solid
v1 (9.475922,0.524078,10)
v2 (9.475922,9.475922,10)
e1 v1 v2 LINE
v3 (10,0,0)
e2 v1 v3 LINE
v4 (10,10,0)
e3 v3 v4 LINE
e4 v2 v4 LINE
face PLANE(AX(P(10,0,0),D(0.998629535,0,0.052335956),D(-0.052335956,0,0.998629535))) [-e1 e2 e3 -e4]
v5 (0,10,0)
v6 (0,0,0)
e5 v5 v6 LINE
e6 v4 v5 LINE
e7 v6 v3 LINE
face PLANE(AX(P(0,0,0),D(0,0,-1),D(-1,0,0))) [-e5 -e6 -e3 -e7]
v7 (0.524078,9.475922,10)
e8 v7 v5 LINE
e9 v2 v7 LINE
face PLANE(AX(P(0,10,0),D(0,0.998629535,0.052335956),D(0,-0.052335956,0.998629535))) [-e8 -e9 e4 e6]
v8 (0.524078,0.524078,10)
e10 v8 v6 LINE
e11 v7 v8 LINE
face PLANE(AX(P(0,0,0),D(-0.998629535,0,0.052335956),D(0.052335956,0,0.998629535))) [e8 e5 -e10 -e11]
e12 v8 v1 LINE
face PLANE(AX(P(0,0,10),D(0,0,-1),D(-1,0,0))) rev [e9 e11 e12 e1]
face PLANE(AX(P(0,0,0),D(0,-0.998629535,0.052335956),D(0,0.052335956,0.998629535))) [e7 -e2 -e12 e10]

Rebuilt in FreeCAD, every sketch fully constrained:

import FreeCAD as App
import Part
import Sketcher

V = App.Vector


def add_polygon(sketch, points):
    """Adds a closed chain of lines whose ends are joined by coincident constraints."""
    first, n = sketch.GeometryCount, len(points)
    for a, b in zip(points, points[1:] + points[:1]):
        sketch.addGeometry(Part.LineSegment(App.Vector(*a, 0), App.Vector(*b, 0)), False)
    for i in range(n):
        sketch.addConstraint(Sketcher.Constraint("Coincident", first + i, 2, first + (i + 1) % n, 1))

doc = App.newDocument("Part")
body = doc.addObject("PartDesign::Body", "Body")

# Sketch on XY plane
sketch1 = body.newObject("Sketcher::SketchObject", "Sketch")
sketch1.AttachmentSupport = (doc.getObject("XY_Plane"), [""])
sketch1.MapMode = "FlatFace"
add_polygon(sketch1, [(0, 10), (0, 0), (10, 0), (10, 10)])  # lines 0-3
sketch1.addConstraint([
    Sketcher.Constraint("Vertical", 0),
    Sketcher.Constraint("Horizontal", 1),
    Sketcher.Constraint("Vertical", 2),
    Sketcher.Constraint("Horizontal", 3),
    Sketcher.Constraint("Coincident", 0, 2, -1, 1),
    Sketcher.Constraint("Equal", 3, 0),
    Sketcher.Constraint("DistanceX", 1, 1, 1, 2, 10.0),
])
pad1 = body.newObject("PartDesign::Pad", "Pad")
pad1.Profile = sketch1
pad1.Length = 10
pad1.TaperAngle = -3

doc.recompute()
